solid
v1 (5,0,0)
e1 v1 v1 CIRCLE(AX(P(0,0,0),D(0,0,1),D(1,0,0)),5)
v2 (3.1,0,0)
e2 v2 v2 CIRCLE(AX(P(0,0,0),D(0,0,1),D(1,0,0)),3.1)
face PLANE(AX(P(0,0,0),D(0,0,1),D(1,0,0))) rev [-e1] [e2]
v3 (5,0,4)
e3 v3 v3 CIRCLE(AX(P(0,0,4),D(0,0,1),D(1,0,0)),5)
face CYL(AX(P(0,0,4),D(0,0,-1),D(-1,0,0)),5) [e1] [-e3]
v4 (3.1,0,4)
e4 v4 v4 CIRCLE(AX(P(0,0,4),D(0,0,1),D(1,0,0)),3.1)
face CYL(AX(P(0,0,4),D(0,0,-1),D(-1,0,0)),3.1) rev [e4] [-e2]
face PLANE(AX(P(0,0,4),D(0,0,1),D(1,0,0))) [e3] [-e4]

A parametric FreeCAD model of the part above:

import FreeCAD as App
import Part
import Sketcher
Q = App.Units.Quantity

doc = App.newDocument("Part")
body = doc.addObject("PartDesign::Body", "Body")

sketch1 = body.newObject("Sketcher::SketchObject", "Sketch")
sketch1.AttachmentSupport = (doc.getObject("XY_Plane"), [""])
sketch1.MapMode = "FlatFace"
sketch1.addGeometry([
    Part.Circle(App.Vector(0, 0, 0), App.Vector(0, 0, 1), 5),
    Part.Circle(App.Vector(0, 0, 0), App.Vector(0, 0, 1), 3.1),
], False)
sketch1.addConstraint([
    Sketcher.Constraint("Coincident", 0, 3, -1, 1),
    Sketcher.Constraint("Coincident", 1, 3, -1, 1),
    Sketcher.Constraint("Diameter", 0, Q("10 mm")),
    Sketcher.Constraint("Diameter", 1, Q("6.2 mm")),
])
pad1 = body.newObject("PartDesign::Pad", "Pad")
pad1.Profile = sketch1
pad1.Length = 4

doc.recompute()
